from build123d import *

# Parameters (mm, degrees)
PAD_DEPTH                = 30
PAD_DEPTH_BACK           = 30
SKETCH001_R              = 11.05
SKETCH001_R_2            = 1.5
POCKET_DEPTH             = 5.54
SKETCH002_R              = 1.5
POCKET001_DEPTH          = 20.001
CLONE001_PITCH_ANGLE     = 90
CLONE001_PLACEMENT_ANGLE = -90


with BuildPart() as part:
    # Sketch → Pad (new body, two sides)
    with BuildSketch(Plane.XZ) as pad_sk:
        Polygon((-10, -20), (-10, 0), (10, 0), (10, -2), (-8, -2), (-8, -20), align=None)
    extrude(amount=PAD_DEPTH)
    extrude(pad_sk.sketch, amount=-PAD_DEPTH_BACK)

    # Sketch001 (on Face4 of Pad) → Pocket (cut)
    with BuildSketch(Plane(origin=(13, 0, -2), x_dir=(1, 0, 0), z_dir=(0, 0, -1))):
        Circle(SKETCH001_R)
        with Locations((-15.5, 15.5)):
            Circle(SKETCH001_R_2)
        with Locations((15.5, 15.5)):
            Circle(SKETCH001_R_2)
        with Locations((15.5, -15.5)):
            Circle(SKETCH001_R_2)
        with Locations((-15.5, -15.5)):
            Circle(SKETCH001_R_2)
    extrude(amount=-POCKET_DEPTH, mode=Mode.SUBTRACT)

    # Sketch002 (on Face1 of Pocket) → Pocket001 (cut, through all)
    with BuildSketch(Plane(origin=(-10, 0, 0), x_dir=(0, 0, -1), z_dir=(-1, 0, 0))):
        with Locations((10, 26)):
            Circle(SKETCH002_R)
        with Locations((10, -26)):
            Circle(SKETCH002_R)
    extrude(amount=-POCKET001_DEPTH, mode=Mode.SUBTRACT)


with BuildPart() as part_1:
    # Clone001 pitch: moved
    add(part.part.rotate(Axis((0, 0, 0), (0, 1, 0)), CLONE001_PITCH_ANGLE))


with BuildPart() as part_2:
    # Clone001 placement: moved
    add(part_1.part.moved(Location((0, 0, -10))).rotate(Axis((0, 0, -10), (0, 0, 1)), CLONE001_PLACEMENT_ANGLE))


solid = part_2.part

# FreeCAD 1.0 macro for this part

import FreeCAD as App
import Part
import Sketcher
Q = App.Units.Quantity

doc = App.newDocument("Part")
body = doc.addObject("PartDesign::Body", "Body")

sketch1 = body.newObject("Sketcher::SketchObject", "Sketch")
sketch1.AttachmentSupport = (doc.getObject("XZ_Plane"), [""])
sketch1.MapMode = "FlatFace"
sketch1.addGeometry(Part.LineSegment(App.Vector(-10, 0, 0), App.Vector(-10, -20, 0)), False)
sketch1.addGeometry(Part.LineSegment(App.Vector(-10, -20, 0), App.Vector(-8, -20, 0)), False)
sketch1.addGeometry(Part.LineSegment(App.Vector(-8, -20, 0), App.Vector(-8, -2, 0)), False)
sketch1.addGeometry(Part.LineSegment(App.Vector(-8, -2, 0), App.Vector(10, -2, 0)), False)
sketch1.addGeometry(Part.LineSegment(App.Vector(10, -2, 0), App.Vector(10, 0, 0)), False)
sketch1.addGeometry(Part.LineSegment(App.Vector(10, 0, 0), App.Vector(-10, 0, 0)), False)
sketch1.addConstraint(Sketcher.Constraint("Coincident", 0, 2, 1, 1))
sketch1.addConstraint(Sketcher.Constraint("Coincident", 1, 2, 2, 1))
sketch1.addConstraint(Sketcher.Constraint("Coincident", 2, 2, 3, 1))
sketch1.addConstraint(Sketcher.Constraint("Coincident", 3, 2, 4, 1))
sketch1.addConstraint(Sketcher.Constraint("Coincident", 4, 2, 5, 1))
sketch1.addConstraint(Sketcher.Constraint("Coincident", 5, 2, 0, 1))
sketch1.addConstraint(Sketcher.Constraint("Vertical", 0))
sketch1.addConstraint(Sketcher.Constraint("Horizontal", 1))
sketch1.addConstraint(Sketcher.Constraint("Vertical", 2))
sketch1.addConstraint(Sketcher.Constraint("Horizontal", 3))
sketch1.addConstraint(Sketcher.Constraint("Vertical", 4))
sketch1.addConstraint(Sketcher.Constraint("Horizontal", 5))
sketch1.addConstraint(Sketcher.Constraint("Symmetric", 4, 2, 5, 2, -1, 1))
sketch1.addConstraint(Sketcher.Constraint("Equal", 5, 0))
sketch1.addConstraint(Sketcher.Constraint("Equal", 3, 2))
sketch1.addConstraint(Sketcher.Constraint("DistanceX", 1, 1, 1, 2, Q("2 mm")))
sketch1.addConstraint(Sketcher.Constraint("DistanceX", 3, 1, 3, 2, Q("18 mm")))
pad1 = body.newObject("PartDesign::Pad", "Pad")
pad1.Profile = sketch1
pad1.Type = "TwoLengths"
pad1.Length = 30
pad1.Length2 = 30

sketch2 = body.newObject("Sketcher::SketchObject", "Sketch001")
sketch2.AttachmentSupport = (doc.getObject("XY_Plane"), [""])
sketch2.MapMode = "FlatFace"
sketch2.AttachmentOffset = App.Placement(App.Vector(0, 0, -2), App.Rotation())
sketch2.addGeometry(Part.Circle(App.Vector(13, 0, 0), App.Vector(0, 0, 1), 11.1), False)
sketch2.addGeometry(Part.Circle(App.Vector(-2.5, -15.5, 0), App.Vector(0, 0, 1), 1.5), False)
sketch2.addGeometry(Part.Circle(App.Vector(28.5, -15.5, 0), App.Vector(0, 0, 1), 1.5), False)
sketch2.addGeometry(Part.Circle(App.Vector(28.5, 15.5, 0), App.Vector(0, 0, 1), 1.5), False)
sketch2.addGeometry(Part.Circle(App.Vector(-2.5, 15.5, 0), App.Vector(0, 0, 1), 1.5), False)
sketch2.addConstraint(Sketcher.Constraint("Equal", 1, 2))
sketch2.addConstraint(Sketcher.Constraint("Equal", 2, 3))
sketch2.addConstraint(Sketcher.Constraint("Equal", 3, 4))
sketch2.addConstraint(Sketcher.Constraint("Symmetric", 2, 3, 3, 3, -1))
sketch2.addConstraint(Sketcher.Constraint("Symmetric", 1, 3, 4, 3, -1))
sketch2.addConstraint(Sketcher.Constraint("PointOnObject", 0, 3, -1))
sketch2.addConstraint(Sketcher.Constraint("Horizontal", 1, 3, 2, 3))
sketch2.addConstraint(Sketcher.Constraint("Diameter", 1, Q("3 mm")))
sketch2.addConstraint(Sketcher.Constraint("Diameter", 0, Q("22.1 mm")))
sketch2.addConstraint(Sketcher.Constraint("DistanceX", -1, 1, 0, 3, Q("13 mm")))
sketch2.addConstraint(Sketcher.Constraint("DistanceX", 1, 3, 2, 3, Q("31 mm")))
sketch2.addConstraint(Sketcher.Constraint("DistanceY", 2, 3, 3, 3, Q("31 mm")))
sketch2.addConstraint(Sketcher.Constraint("DistanceX", 1, 3, -1, 1, Q("2.5 mm")))
pocket1 = body.newObject("PartDesign::Pocket", "Pocket")
pocket1.Profile = sketch2
pocket1.Length = 5.54
pocket1.Reversed = True

sketch3 = body.newObject("Sketcher::SketchObject", "Sketch002")
sketch3.AttachmentSupport = (doc.getObject("YZ_Plane"), [""])
sketch3.MapMode = "FlatFace"
sketch3.AttachmentOffset = App.Placement(App.Vector(0, 0, -10), App.Rotation())
sketch3.addGeometry(Part.Circle(App.Vector(-26, -10, 0), App.Vector(0, 0, 1), 1.5), False)
sketch3.addGeometry(Part.Circle(App.Vector(26, -10, 0), App.Vector(0, 0, 1), 1.5), False)
sketch3.addConstraint(Sketcher.Constraint("Equal", 0, 1))
sketch3.addConstraint(Sketcher.Constraint("Symmetric", 0, 3, 1, 3, -2))
sketch3.addConstraint(Sketcher.Constraint("Diameter", 0, Q("3 mm")))
sketch3.addConstraint(Sketcher.Constraint("DistanceX", 0, 3, -1, 1, Q("26 mm")))
sketch3.addConstraint(Sketcher.Constraint("DistanceY", 0, 3, -1, 1, Q("10 mm")))
pocket2 = body.newObject("PartDesign::Pocket", "Pocket001")
pocket2.Profile = sketch3
pocket2.Type = "ThroughAll"
pocket2.Reversed = True
body2 = doc.addObject("PartDesign::Body", "Body001")
doc.recompute()

body.Placement = App.Placement(App.Vector(0, 0, 0), App.Rotation(App.Vector(0, 1, 0), 90))
boolean = body2.newObject("PartDesign::Boolean", "Boolean")
boolean.Type = "Fuse"
boolean.addObjects([body])
body3 = doc.addObject("PartDesign::Body", "Body002")
doc.recompute()

body2.Placement = App.Placement(App.Vector(0, 0, -10), App.Rotation(App.Vector(0, 0, 1), 270))
boolean2 = body3.newObject("PartDesign::Boolean", "Boolean001")
boolean2.Type = "Fuse"
boolean2.addObjects([body2])

doc.recompute()
